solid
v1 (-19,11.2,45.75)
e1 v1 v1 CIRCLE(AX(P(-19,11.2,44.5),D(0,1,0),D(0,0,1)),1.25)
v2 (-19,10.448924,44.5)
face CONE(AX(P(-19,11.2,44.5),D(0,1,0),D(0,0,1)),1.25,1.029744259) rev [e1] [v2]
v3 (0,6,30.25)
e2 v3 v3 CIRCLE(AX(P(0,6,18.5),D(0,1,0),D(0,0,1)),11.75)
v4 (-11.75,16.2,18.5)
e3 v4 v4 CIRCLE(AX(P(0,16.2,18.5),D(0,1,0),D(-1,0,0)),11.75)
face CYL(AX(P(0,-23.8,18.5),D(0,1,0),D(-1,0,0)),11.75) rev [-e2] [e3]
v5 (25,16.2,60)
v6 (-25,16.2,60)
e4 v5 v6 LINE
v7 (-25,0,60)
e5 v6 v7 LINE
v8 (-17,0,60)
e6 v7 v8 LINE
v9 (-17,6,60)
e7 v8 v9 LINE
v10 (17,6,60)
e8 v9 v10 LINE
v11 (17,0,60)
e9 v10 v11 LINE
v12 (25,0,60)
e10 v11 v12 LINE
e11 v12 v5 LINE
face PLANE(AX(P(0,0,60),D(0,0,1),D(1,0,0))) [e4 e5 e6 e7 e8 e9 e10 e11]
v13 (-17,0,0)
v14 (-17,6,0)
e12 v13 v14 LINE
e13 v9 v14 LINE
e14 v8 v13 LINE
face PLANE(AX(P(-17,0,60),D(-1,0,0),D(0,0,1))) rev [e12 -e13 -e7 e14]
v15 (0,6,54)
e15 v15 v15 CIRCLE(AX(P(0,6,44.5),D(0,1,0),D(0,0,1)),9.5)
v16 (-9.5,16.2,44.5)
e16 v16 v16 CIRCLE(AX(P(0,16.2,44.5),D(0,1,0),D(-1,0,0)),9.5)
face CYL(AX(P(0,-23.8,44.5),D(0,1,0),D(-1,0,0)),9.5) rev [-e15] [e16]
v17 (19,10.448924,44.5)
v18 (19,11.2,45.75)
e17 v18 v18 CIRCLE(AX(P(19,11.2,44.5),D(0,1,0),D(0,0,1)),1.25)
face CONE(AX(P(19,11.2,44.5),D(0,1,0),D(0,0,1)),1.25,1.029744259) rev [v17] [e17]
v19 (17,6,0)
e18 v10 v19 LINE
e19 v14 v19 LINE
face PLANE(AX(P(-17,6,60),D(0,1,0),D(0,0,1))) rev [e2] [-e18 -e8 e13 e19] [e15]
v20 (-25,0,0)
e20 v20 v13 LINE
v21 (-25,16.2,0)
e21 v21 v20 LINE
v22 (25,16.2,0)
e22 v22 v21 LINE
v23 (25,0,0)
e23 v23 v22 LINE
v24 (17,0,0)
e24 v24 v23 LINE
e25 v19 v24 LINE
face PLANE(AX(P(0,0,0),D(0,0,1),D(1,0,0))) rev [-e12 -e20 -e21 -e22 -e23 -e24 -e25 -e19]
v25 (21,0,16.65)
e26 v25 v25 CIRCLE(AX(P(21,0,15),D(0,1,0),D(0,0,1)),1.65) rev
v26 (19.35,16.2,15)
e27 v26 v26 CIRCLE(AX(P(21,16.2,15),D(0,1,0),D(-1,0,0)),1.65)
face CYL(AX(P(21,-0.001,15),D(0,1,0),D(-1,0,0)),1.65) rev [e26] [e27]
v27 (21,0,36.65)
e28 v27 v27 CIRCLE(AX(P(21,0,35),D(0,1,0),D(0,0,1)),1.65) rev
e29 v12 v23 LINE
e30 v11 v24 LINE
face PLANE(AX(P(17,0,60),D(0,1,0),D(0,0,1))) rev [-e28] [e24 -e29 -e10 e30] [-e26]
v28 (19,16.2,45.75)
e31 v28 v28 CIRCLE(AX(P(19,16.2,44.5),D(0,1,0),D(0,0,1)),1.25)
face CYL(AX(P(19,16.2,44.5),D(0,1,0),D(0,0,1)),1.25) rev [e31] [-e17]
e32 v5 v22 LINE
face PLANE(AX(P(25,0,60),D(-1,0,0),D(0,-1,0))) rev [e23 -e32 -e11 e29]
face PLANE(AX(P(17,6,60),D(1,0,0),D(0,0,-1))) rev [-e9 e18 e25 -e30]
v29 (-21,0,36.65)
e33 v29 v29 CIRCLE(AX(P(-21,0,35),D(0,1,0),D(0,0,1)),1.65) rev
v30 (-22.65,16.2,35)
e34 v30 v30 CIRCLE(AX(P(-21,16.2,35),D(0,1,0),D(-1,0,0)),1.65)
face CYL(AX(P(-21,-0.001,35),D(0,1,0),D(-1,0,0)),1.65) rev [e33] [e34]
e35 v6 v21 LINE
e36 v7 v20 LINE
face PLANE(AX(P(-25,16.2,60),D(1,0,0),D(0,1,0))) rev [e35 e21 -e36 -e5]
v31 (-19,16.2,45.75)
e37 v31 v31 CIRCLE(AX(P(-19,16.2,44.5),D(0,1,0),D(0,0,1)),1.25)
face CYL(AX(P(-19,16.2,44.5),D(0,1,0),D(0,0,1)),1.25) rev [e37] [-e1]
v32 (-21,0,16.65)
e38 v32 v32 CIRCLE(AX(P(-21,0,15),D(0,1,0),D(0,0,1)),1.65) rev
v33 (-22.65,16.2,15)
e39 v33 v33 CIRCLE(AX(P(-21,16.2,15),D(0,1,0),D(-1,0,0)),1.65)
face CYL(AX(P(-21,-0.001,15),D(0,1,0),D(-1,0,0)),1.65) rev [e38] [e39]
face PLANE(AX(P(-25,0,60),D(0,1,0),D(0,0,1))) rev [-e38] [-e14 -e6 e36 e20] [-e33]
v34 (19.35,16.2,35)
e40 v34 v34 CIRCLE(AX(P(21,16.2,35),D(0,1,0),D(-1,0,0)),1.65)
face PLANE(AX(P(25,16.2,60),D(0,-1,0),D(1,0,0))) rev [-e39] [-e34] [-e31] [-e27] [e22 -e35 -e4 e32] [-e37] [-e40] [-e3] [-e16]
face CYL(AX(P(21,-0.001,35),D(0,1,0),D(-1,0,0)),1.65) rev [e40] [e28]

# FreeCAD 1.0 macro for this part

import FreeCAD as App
import Part
import Sketcher
Q = App.Units.Quantity


def add_polygon(sketch, points):
    """Adds a closed chain of lines whose ends are joined by coincident constraints."""
    first, n = sketch.GeometryCount, len(points)
    for a, b in zip(points, points[1:] + points[:1]):
        sketch.addGeometry(Part.LineSegment(App.Vector(*a, 0), App.Vector(*b, 0)), False)
    for i in range(n):
        sketch.addConstraint(Sketcher.Constraint("Coincident", first + i, 2, first + (i + 1) % n, 1))

doc = App.newDocument("Part")
params = doc.addObject("Spreadsheet::Sheet", "Params")
for row, (alias, value) in enumerate([
    ("sketch1_width", "8 mm"),
    ("sketch1_width2", "34 mm"),
    ("sketch1_height", "6 mm"),
    ("sketch1_height2", "16.2 mm"),
    ("pad1_length", "60 mm"),
    ("sketch2_diameter", "23.5 mm"),
    ("pocket1_length", "40 mm"),
    ("sketch3_diameter", "19 mm"),
    ("pocket2_length", "40 mm"),
    ("sketch4_diameter", "2.5 mm"),
    ("hole_diameter", "2.5 mm"),
    ("hole_depth", "5 mm"),
    ("sketch5_diameter", "3.3 mm"),
    ("sketch6_diameter", "3.3 mm"),
    ("sketch7_diameter", "3.3 mm"),
    ("sketch8_diameter", "3.3 mm"),
], start=1):
    params.set(f"A{row}", alias)
    params.set(f"B{row}", "=" + value)
    params.setAlias(f"B{row}", alias)

body = doc.addObject("PartDesign::Body", "Body")

sketch1 = body.newObject("Sketcher::SketchObject", "Sketch")
sketch1.AttachmentSupport = (doc.getObject("XY_Plane"), [""])
sketch1.MapMode = "FlatFace"
add_polygon(sketch1, [(-25, 0), (-17, 0), (-17, 6), (17, 6), (17, 0), (25, 0), (25, 16.2), (-25, 16.2)])
sketch1.addConstraint([
    Sketcher.Constraint("Horizontal", 0),
    Sketcher.Constraint("Vertical", 1),
    Sketcher.Constraint("Horizontal", 2),
    Sketcher.Constraint("Vertical", 3),
    Sketcher.Constraint("Horizontal", 4),
    Sketcher.Constraint("Vertical", 5),
    Sketcher.Constraint("Horizontal", 6),
    Sketcher.Constraint("Vertical", 7),
    Sketcher.Constraint("Symmetric", 0, 2, 3, 2, -1, 1),
    Sketcher.Constraint("Symmetric", 4, 2, 7, 2, -2),
    Sketcher.Constraint("DistanceX", 0, 1, 0, 2, Q("8 mm")),
    Sketcher.Constraint("DistanceX", 2, 1, 2, 2, Q("34 mm")),
    Sketcher.Constraint("DistanceY", 1, 1, 1, 2, Q("6 mm")),
    Sketcher.Constraint("DistanceY", 5, 1, 5, 2, Q("16.2 mm")),
])
sketch1.setExpression("Constraints[18]", "Params.sketch1_width")
sketch1.setExpression("Constraints[19]", "Params.sketch1_width2")
sketch1.setExpression("Constraints[20]", "Params.sketch1_height")
sketch1.setExpression("Constraints[21]", "Params.sketch1_height2")
pad1 = body.newObject("PartDesign::Pad", "Pad")
pad1.Profile = sketch1
pad1.setExpression("Length", "Params.pad1_length")

sketch2 = body.newObject("Sketcher::SketchObject", "Sketch001")
sketch2.AttachmentSupport = (doc.getObject("XZ_Plane"), [""])
sketch2.MapMode = "FlatFace"
sketch2.AttachmentOffset = App.Placement(App.Vector(0, 0, -16.2), App.Rotation())
sketch2.addGeometry(Part.Circle(App.Vector(0, 18.5, 0), App.Vector(0, 0, 1), 11.75), False)
sketch2.addConstraint([
    Sketcher.Constraint("PointOnObject", 0, 3, -2),
    Sketcher.Constraint("Diameter", 0, Q("23.5 mm")),
    Sketcher.Constraint("DistanceY", -1, 1, 0, 3, Q("18.5 mm")),
])
sketch2.setExpression("Constraints[1]", "Params.sketch2_diameter")
pocket1 = body.newObject("PartDesign::Pocket", "Pocket")
pocket1.Profile = sketch2
pocket1.setExpression("Length", "Params.pocket1_length")
pocket1.Reversed = True

sketch3 = body.newObject("Sketcher::SketchObject", "Sketch002")
sketch3.AttachmentSupport = (doc.getObject("XZ_Plane"), [""])
sketch3.MapMode = "FlatFace"
sketch3.AttachmentOffset = App.Placement(App.Vector(0, 0, -16.2), App.Rotation())
sketch3.addGeometry(Part.Circle(App.Vector(0, 44.5, 0), App.Vector(0, 0, 1), 9.5), False)
sketch3.addConstraint([
    Sketcher.Constraint("PointOnObject", 0, 3, -2),
    Sketcher.Constraint("Diameter", 0, Q("19 mm")),
    Sketcher.Constraint("DistanceY", -1, 1, 0, 3, Q("44.5 mm")),
])
sketch3.setExpression("Constraints[1]", "Params.sketch3_diameter")
pocket2 = body.newObject("PartDesign::Pocket", "Pocket001")
pocket2.Profile = sketch3
pocket2.setExpression("Length", "Params.pocket2_length")
pocket2.Reversed = True

sketch4 = body.newObject("Sketcher::SketchObject", "Sketch003")
sketch4.AttachmentSupport = (doc.getObject("XZ_Plane"), [""])
sketch4.MapMode = "FlatFace"
sketch4.AttachmentOffset = App.Placement(App.Vector(0, 0, -16.2), App.Rotation())
sketch4.addGeometry([
    Part.Circle(App.Vector(19, 44.5, 0), App.Vector(0, 0, 1), 1.25),
    Part.Circle(App.Vector(-19, 44.5, 0), App.Vector(0, 0, 1), 1.25),
], False)
sketch4.addConstraint([
    Sketcher.Constraint("Equal", 0, 1),
    Sketcher.Constraint("Symmetric", 0, 3, 1, 3, -2),
    Sketcher.Constraint("Diameter", 0, Q("2.5 mm")),
    Sketcher.Constraint("DistanceX", -1, 1, 0, 3, Q("19 mm")),
    Sketcher.Constraint("DistanceY", -1, 1, 0, 3, Q("44.5 mm")),
])
sketch4.setExpression("Constraints[2]", "Params.sketch4_diameter")
doc.recompute()
hole = body.newObject("PartDesign::Hole", "Hole")
hole.Profile = sketch4
hole.ThreadType = "None"
hole.setExpression("Diameter", "Params.hole_diameter")
hole.DepthType = "Dimension"
hole.setExpression("Depth", "Params.hole_depth")
hole.DrillPoint = "Angled"
hole.DrillPointAngle = 118
hole.Reversed = True

sketch5 = body.newObject("Sketcher::SketchObject", "Sketch004")
sketch5.AttachmentSupport = (doc.getObject("XZ_Plane"), [""])
sketch5.MapMode = "FlatFace"
sketch5.AttachmentOffset = App.Placement(App.Vector(0, 0, -16.2), App.Rotation())
sketch5.addGeometry(Part.Circle(App.Vector(-21, 35, 0), App.Vector(0, 0, 1), 1.65), False)
sketch5.addConstraint([
    Sketcher.Constraint("Diameter", 0, Q("3.3 mm")),
    Sketcher.Constraint("DistanceX", 0, 3, -1, 1, Q("21 mm")),
    Sketcher.Constraint("DistanceY", -1, 1, 0, 3, Q("35 mm")),
])
sketch5.setExpression("Constraints[0]", "Params.sketch5_diameter")
pocket3 = body.newObject("PartDesign::Pocket", "Pocket002")
pocket3.Profile = sketch5
pocket3.Type = "UpToFirst"
pocket3.Reversed = True

sketch6 = body.newObject("Sketcher::SketchObject", "Sketch005")
sketch6.AttachmentSupport = (doc.getObject("XZ_Plane"), [""])
sketch6.MapMode = "FlatFace"
sketch6.AttachmentOffset = App.Placement(App.Vector(0, 0, -16.2), App.Rotation())
sketch6.addGeometry(Part.Circle(App.Vector(-21, 15, 0), App.Vector(0, 0, 1), 1.65), False)
sketch6.addConstraint([
    Sketcher.Constraint("Diameter", 0, Q("3.3 mm")),
    Sketcher.Constraint("DistanceX", 0, 3, -1, 1, Q("21 mm")),
    Sketcher.Constraint("DistanceY", -1, 1, 0, 3, Q("15 mm")),
])
sketch6.setExpression("Constraints[0]", "Params.sketch6_diameter")
pocket4 = body.newObject("PartDesign::Pocket", "Pocket003")
pocket4.Profile = sketch6
pocket4.Type = "UpToFirst"
pocket4.Reversed = True

sketch7 = body.newObject("Sketcher::SketchObject", "Sketch006")
sketch7.AttachmentSupport = (doc.getObject("XZ_Plane"), [""])
sketch7.MapMode = "FlatFace"
sketch7.AttachmentOffset = App.Placement(App.Vector(0, 0, -16.2), App.Rotation())
sketch7.addGeometry(Part.Circle(App.Vector(21, 35, 0), App.Vector(0, 0, 1), 1.65), False)
sketch7.addConstraint([
    Sketcher.Constraint("Diameter", 0, Q("3.3 mm")),
    Sketcher.Constraint("DistanceX", -1, 1, 0, 3, Q("21 mm")),
    Sketcher.Constraint("DistanceY", -1, 1, 0, 3, Q("35 mm")),
])
sketch7.setExpression("Constraints[0]", "Params.sketch7_diameter")
pocket5 = body.newObject("PartDesign::Pocket", "Pocket004")
pocket5.Profile = sketch7
pocket5.Type = "UpToFirst"
pocket5.Reversed = True

sketch8 = body.newObject("Sketcher::SketchObject", "Sketch007")
sketch8.AttachmentSupport = (doc.getObject("XZ_Plane"), [""])
sketch8.MapMode = "FlatFace"
sketch8.AttachmentOffset = App.Placement(App.Vector(0, 0, -16.2), App.Rotation())
sketch8.addGeometry(Part.Circle(App.Vector(21, 15, 0), App.Vector(0, 0, 1), 1.65), False)
sketch8.addConstraint([
    Sketcher.Constraint("Diameter", 0, Q("3.3 mm")),
    Sketcher.Constraint("DistanceX", -1, 1, 0, 3, Q("21 mm")),
    Sketcher.Constraint("DistanceY", -1, 1, 0, 3, Q("15 mm")),
])
sketch8.setExpression("Constraints[0]", "Params.sketch8_diameter")
pocket6 = body.newObject("PartDesign::Pocket", "Pocket005")
pocket6.Profile = sketch8
pocket6.Type = "UpToFirst"
pocket6.Reversed = True

doc.recompute()
